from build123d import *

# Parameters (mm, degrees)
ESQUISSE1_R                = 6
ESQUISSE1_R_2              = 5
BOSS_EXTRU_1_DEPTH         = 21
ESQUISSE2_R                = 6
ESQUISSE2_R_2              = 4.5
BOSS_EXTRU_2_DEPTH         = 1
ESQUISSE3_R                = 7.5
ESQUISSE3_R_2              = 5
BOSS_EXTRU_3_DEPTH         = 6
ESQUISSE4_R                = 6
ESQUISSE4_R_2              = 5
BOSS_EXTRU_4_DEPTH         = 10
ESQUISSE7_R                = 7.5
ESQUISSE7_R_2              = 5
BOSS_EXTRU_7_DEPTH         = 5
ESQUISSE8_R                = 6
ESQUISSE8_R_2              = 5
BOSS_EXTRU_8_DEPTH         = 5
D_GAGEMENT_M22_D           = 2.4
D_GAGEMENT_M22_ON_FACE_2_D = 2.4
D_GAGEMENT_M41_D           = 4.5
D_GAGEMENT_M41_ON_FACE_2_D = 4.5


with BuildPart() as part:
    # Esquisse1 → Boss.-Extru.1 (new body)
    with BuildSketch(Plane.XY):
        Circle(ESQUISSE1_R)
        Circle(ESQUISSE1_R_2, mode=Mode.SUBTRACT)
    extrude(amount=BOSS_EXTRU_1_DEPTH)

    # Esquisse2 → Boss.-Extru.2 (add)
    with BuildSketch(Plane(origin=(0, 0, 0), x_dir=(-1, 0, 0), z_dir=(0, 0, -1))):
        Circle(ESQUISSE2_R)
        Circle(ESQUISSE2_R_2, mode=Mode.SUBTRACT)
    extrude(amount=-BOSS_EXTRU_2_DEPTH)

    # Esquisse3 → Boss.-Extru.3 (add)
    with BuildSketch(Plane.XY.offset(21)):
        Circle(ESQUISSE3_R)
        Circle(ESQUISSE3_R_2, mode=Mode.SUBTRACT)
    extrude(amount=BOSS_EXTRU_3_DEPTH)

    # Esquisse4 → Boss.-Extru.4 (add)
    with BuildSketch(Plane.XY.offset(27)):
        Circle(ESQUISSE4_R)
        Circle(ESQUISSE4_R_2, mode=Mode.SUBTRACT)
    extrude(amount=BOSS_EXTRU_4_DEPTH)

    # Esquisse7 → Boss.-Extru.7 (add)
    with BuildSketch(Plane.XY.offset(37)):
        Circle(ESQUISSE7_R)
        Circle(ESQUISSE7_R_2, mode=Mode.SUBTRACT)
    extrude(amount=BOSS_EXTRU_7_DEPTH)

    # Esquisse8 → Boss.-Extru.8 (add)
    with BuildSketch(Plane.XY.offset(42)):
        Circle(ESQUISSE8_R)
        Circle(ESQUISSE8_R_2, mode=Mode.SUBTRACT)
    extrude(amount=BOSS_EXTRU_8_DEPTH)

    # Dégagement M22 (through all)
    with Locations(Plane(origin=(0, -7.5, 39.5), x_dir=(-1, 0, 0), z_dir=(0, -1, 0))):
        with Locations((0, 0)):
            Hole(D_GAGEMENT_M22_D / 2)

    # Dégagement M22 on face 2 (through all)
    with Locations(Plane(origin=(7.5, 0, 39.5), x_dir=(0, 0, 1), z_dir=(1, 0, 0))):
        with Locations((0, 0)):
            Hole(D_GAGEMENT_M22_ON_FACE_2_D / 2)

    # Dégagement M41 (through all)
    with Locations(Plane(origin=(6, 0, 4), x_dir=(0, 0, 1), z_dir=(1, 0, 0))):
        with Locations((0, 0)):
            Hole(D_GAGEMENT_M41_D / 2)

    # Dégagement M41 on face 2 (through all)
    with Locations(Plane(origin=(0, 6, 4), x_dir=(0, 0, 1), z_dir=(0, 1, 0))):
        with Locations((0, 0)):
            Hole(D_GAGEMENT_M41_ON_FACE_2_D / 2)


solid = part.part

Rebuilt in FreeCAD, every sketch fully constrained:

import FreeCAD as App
import Part
import Sketcher

doc = App.newDocument("Part")
body = doc.addObject("PartDesign::Body", "Body")

# Sketch on XY plane
sketch1 = body.newObject("Sketcher::SketchObject", "Sketch")
sketch1.AttachmentSupport = (doc.getObject("XY_Plane"), [""])
sketch1.MapMode = "FlatFace"
sketch1.addGeometry([
    Part.Circle(App.Vector(0, 0, 0), App.Vector(0, 0, 1), 6),
    Part.Circle(App.Vector(0, 0, 0), App.Vector(0, 0, 1), 5),
], False)
sketch1.addConstraint([
    Sketcher.Constraint("Coincident", 0, 3, -1, 1),
    Sketcher.Constraint("Coincident", 1, 3, -1, 1),
    Sketcher.Constraint("Diameter", 0, 12.0),
    Sketcher.Constraint("Diameter", 1, 10.0),
])
pad1 = body.newObject("PartDesign::Pad", "Pad")
pad1.Profile = sketch1
pad1.Length = 21

# Sketch on XY plane
sketch2 = body.newObject("Sketcher::SketchObject", "Sketch001")
sketch2.AttachmentSupport = (doc.getObject("XY_Plane"), [""])
sketch2.MapMode = "FlatFace"
sketch2.addGeometry([
    Part.Circle(App.Vector(0, 0, 0), App.Vector(0, 0, 1), 6),
    Part.Circle(App.Vector(0, 0, 0), App.Vector(0, 0, 1), 4.5),
], False)
sketch2.addConstraint([
    Sketcher.Constraint("Coincident", 0, 3, -1, 1),
    Sketcher.Constraint("Coincident", 1, 3, -1, 1),
    Sketcher.Constraint("Diameter", 0, 12.0),
    Sketcher.Constraint("Diameter", 1, 9.0),
])
pad2 = body.newObject("PartDesign::Pad", "Pad001")
pad2.Profile = sketch2
pad2.Length = 1

# Sketch on XY plane
sketch3 = body.newObject("Sketcher::SketchObject", "Sketch002")
sketch3.AttachmentSupport = (doc.getObject("XY_Plane"), [""])
sketch3.MapMode = "FlatFace"
sketch3.AttachmentOffset = App.Placement(App.Vector(0, 0, 21), App.Rotation())
sketch3.addGeometry([
    Part.Circle(App.Vector(0, 0, 0), App.Vector(0, 0, 1), 8),
    Part.Circle(App.Vector(0, 0, 0), App.Vector(0, 0, 1), 5),
], False)
sketch3.addConstraint([
    Sketcher.Constraint("Coincident", 0, 3, -1, 1),
    Sketcher.Constraint("Coincident", 1, 3, -1, 1),
    Sketcher.Constraint("Diameter", 0, 15.0),
    Sketcher.Constraint("Diameter", 1, 10.0),
])
pad3 = body.newObject("PartDesign::Pad", "Pad002")
pad3.Profile = sketch3
pad3.Length = 6

# Sketch on XY plane
sketch4 = body.newObject("Sketcher::SketchObject", "Sketch003")
sketch4.AttachmentSupport = (doc.getObject("XY_Plane"), [""])
sketch4.MapMode = "FlatFace"
sketch4.AttachmentOffset = App.Placement(App.Vector(0, 0, 27), App.Rotation())
sketch4.addGeometry([
    Part.Circle(App.Vector(0, 0, 0), App.Vector(0, 0, 1), 6),
    Part.Circle(App.Vector(0, 0, 0), App.Vector(0, 0, 1), 5),
], False)
sketch4.addConstraint([
    Sketcher.Constraint("Coincident", 0, 3, -1, 1),
    Sketcher.Constraint("Coincident", 1, 3, -1, 1),
    Sketcher.Constraint("Diameter", 0, 12.0),
    Sketcher.Constraint("Diameter", 1, 10.0),
])
pad4 = body.newObject("PartDesign::Pad", "Pad003")
pad4.Profile = sketch4
pad4.Length = 10

# Sketch on XY plane
sketch5 = body.newObject("Sketcher::SketchObject", "Sketch004")
sketch5.AttachmentSupport = (doc.getObject("XY_Plane"), [""])
sketch5.MapMode = "FlatFace"
sketch5.AttachmentOffset = App.Placement(App.Vector(0, 0, 37), App.Rotation())
sketch5.addGeometry([
    Part.Circle(App.Vector(0, 0, 0), App.Vector(0, 0, 1), 8),
    Part.Circle(App.Vector(0, 0, 0), App.Vector(0, 0, 1), 5),
], False)
sketch5.addConstraint([
    Sketcher.Constraint("Coincident", 0, 3, -1, 1),
    Sketcher.Constraint("Coincident", 1, 3, -1, 1),
    Sketcher.Constraint("Diameter", 0, 15.0),
    Sketcher.Constraint("Diameter", 1, 10.0),
])
pad5 = body.newObject("PartDesign::Pad", "Pad004")
pad5.Profile = sketch5
pad5.Length = 5

# Sketch on XY plane
sketch6 = body.newObject("Sketcher::SketchObject", "Sketch005")
sketch6.AttachmentSupport = (doc.getObject("XY_Plane"), [""])
sketch6.MapMode = "FlatFace"
sketch6.AttachmentOffset = App.Placement(App.Vector(0, 0, 42), App.Rotation())
sketch6.addGeometry([
    Part.Circle(App.Vector(0, 0, 0), App.Vector(0, 0, 1), 6),
    Part.Circle(App.Vector(0, 0, 0), App.Vector(0, 0, 1), 5),
], False)
sketch6.addConstraint([
    Sketcher.Constraint("Coincident", 0, 3, -1, 1),
    Sketcher.Constraint("Coincident", 1, 3, -1, 1),
    Sketcher.Constraint("Diameter", 0, 12.0),
    Sketcher.Constraint("Diameter", 1, 10.0),
])
pad6 = body.newObject("PartDesign::Pad", "Pad005")
pad6.Profile = sketch6
pad6.Length = 5

# Sketch on XZ plane
sketch7 = body.newObject("Sketcher::SketchObject", "Sketch006")
sketch7.AttachmentSupport = (doc.getObject("XZ_Plane"), [""])
sketch7.MapMode = "FlatFace"
sketch7.AttachmentOffset = App.Placement(App.Vector(0, 0, 7.5), App.Rotation())
sketch7.addGeometry(Part.Circle(App.Vector(0, 39.5, 0), App.Vector(0, 0, 1), 1.2), False)
sketch7.addConstraint([
    Sketcher.Constraint("PointOnObject", 0, 3, -2),
    Sketcher.Constraint("Diameter", 0, 2.4),
    Sketcher.Constraint("DistanceY", -1, 1, 0, 3, 39.5),
])
doc.recompute()
hole = body.newObject("PartDesign::Hole", "Hole")
hole.Profile = sketch7
hole.ThreadType = "None"
hole.Diameter = 2.4
hole.DepthType = "ThroughAll"

# Sketch on YZ plane
sketch8 = body.newObject("Sketcher::SketchObject", "Sketch007")
sketch8.AttachmentSupport = (doc.getObject("YZ_Plane"), [""])
sketch8.MapMode = "FlatFace"
sketch8.AttachmentOffset = App.Placement(App.Vector(0, 0, 7.5), App.Rotation())
sketch8.addGeometry(Part.Circle(App.Vector(0, 39.5, 0), App.Vector(0, 0, 1), 1.2), False)
sketch8.addConstraint([
    Sketcher.Constraint("PointOnObject", 0, 3, -2),
    Sketcher.Constraint("Diameter", 0, 2.4),
    Sketcher.Constraint("DistanceY", -1, 1, 0, 3, 39.5),
])
doc.recompute()
hole2 = body.newObject("PartDesign::Hole", "Hole001")
hole2.Profile = sketch8
hole2.ThreadType = "None"
hole2.Diameter = 2.4
hole2.DepthType = "ThroughAll"

# Sketch on YZ plane
sketch9 = body.newObject("Sketcher::SketchObject", "Sketch008")
sketch9.AttachmentSupport = (doc.getObject("YZ_Plane"), [""])
sketch9.MapMode = "FlatFace"
sketch9.AttachmentOffset = App.Placement(App.Vector(0, 0, 6), App.Rotation())
sketch9.addGeometry(Part.Circle(App.Vector(0, 4, 0), App.Vector(0, 0, 1), 2.2), False)
sketch9.addConstraint([
    Sketcher.Constraint("PointOnObject", 0, 3, -2),
    Sketcher.Constraint("Diameter", 0, 4.5),
    Sketcher.Constraint("DistanceY", -1, 1, 0, 3, 4.0),
])
doc.recompute()
hole3 = body.newObject("PartDesign::Hole", "Hole002")
hole3.Profile = sketch9
hole3.ThreadType = "None"
hole3.Diameter = 4.5
hole3.DepthType = "ThroughAll"

# Sketch on XZ plane
sketch10 = body.newObject("Sketcher::SketchObject", "Sketch009")
sketch10.AttachmentSupport = (doc.getObject("XZ_Plane"), [""])
sketch10.MapMode = "FlatFace"
sketch10.AttachmentOffset = App.Placement(App.Vector(0, 0, -6), App.Rotation())
sketch10.addGeometry(Part.Circle(App.Vector(0, 4, 0), App.Vector(0, 0, 1), 2.2), False)
sketch10.addConstraint([
    Sketcher.Constraint("PointOnObject", 0, 3, -2),
    Sketcher.Constraint("Diameter", 0, 4.5),
    Sketcher.Constraint("DistanceY", -1, 1, 0, 3, 4.0),
])
doc.recompute()
hole4 = body.newObject("PartDesign::Hole", "Hole003")
hole4.Profile = sketch10
hole4.ThreadType = "None"
hole4.Diameter = 4.5
hole4.DepthType = "ThroughAll"
hole4.Reversed = True

doc.recompute()
